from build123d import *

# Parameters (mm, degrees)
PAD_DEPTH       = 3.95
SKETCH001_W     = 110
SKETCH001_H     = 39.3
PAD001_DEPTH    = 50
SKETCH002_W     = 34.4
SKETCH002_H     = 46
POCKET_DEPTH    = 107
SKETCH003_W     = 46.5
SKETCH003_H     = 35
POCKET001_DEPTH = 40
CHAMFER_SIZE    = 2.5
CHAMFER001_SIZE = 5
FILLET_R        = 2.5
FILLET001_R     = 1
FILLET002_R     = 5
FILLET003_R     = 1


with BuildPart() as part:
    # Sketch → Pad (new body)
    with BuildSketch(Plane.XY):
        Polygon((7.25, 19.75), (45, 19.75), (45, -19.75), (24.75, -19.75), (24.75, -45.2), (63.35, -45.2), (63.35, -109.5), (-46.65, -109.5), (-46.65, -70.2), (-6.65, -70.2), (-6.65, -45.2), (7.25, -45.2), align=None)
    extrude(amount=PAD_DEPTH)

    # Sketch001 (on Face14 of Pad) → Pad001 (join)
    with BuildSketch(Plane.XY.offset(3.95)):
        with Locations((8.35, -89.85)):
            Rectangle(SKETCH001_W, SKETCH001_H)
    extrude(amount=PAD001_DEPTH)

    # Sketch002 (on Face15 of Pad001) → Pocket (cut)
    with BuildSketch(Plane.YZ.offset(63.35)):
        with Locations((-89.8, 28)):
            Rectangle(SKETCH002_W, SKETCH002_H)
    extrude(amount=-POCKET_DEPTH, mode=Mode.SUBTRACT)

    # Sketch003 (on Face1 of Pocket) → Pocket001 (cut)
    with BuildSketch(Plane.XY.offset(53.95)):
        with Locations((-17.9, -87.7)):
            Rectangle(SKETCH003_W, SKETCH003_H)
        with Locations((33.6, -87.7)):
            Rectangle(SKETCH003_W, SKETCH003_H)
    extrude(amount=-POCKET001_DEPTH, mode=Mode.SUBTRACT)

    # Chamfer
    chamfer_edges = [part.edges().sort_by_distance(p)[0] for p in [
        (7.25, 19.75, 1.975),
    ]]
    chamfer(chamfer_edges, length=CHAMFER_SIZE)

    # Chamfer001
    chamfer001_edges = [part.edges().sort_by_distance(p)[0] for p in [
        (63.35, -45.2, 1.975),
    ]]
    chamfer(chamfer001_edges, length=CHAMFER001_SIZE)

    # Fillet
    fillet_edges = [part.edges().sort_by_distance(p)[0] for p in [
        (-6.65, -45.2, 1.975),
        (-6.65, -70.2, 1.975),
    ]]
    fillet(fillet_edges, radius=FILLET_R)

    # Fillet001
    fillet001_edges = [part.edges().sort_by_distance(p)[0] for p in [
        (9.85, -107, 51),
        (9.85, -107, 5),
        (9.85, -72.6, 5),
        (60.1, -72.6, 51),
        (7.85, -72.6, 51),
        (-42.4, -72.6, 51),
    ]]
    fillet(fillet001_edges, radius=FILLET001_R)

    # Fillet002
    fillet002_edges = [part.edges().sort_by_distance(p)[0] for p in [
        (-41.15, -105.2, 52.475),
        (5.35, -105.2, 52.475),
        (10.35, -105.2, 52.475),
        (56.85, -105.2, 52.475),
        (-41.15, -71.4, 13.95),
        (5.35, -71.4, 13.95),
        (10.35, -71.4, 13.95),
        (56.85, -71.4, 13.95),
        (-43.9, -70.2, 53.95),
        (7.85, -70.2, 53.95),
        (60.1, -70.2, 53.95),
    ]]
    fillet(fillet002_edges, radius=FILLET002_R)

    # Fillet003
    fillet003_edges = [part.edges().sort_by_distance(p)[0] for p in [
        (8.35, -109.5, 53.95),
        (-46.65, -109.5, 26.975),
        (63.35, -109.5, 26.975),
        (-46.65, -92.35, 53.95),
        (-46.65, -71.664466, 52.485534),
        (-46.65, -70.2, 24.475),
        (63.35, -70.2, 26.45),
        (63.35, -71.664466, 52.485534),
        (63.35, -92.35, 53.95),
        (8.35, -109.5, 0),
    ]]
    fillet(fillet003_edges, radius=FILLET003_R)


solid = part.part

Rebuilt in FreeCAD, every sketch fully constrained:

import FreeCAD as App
import Part
import Sketcher

V = App.Vector
Q = App.Units.Quantity


def edges_at(feature, points):
    """Names of the edges that pass closest to the given points."""
    edges = feature.Shape.Edges
    near = lambda p: min(range(len(edges)), key=lambda i: edges[i].distToShape(Part.Vertex(*p))[0])
    return sorted({f"Edge{near(p) + 1}" for p in points})

doc = App.newDocument("Part")
body = doc.addObject("PartDesign::Body", "Body")

# Sketch on XY plane
sketch1 = body.newObject("Sketcher::SketchObject", "Sketch")
sketch1.AttachmentSupport = (doc.getObject("XY_Plane"), [""])
sketch1.MapMode = "FlatFace"
sketch1.addGeometry([
    Part.LineSegment(V(45, 19.75, 0), V(7.25, 19.75, 0)),  # 0
    Part.LineSegment(V(7.25, 19.75, 0), V(7.25, -45.2, 0)),  # 1
    Part.LineSegment(V(7.25, -45.2, 0), V(-6.65, -45.2, 0)),  # 2
    Part.LineSegment(V(-6.65, -45.2, 0), V(-6.65, -70.2, 0)),  # 3
    Part.LineSegment(V(-6.65, -70.2, 0), V(-46.65, -70.2, 0)),  # 4
    Part.LineSegment(V(-46.65, -70.2, 0), V(-46.65, -109.5, 0)),  # 5
    Part.LineSegment(V(-46.65, -109.5, 0), V(63.35, -109.5, 0)),  # 6
    Part.LineSegment(V(63.35, -109.5, 0), V(63.35, -45.2, 0)),  # 7
    Part.LineSegment(V(63.35, -45.2, 0), V(24.75, -45.2, 0)),  # 8
    Part.LineSegment(V(24.75, -45.2, 0), V(24.75, -19.75, 0)),  # 9
    Part.LineSegment(V(24.75, -19.75, 0), V(45, -19.75, 0)),  # 10
    Part.LineSegment(V(45, -19.75, 0), V(45, 19.75, 0)),  # 11
], False)
sketch1.addConstraint([
    Sketcher.Constraint("Coincident", 0, 2, 1, 1),
    Sketcher.Constraint("Coincident", 1, 2, 2, 1),
    Sketcher.Constraint("Coincident", 2, 2, 3, 1),
    Sketcher.Constraint("Coincident", 3, 2, 4, 1),
    Sketcher.Constraint("Coincident", 4, 2, 5, 1),
    Sketcher.Constraint("Coincident", 5, 2, 6, 1),
    Sketcher.Constraint("Coincident", 6, 2, 7, 1),
    Sketcher.Constraint("Coincident", 7, 2, 8, 1),
    Sketcher.Constraint("Coincident", 8, 2, 9, 1),
    Sketcher.Constraint("Coincident", 9, 2, 10, 1),
    Sketcher.Constraint("Coincident", 10, 2, 11, 1),
    Sketcher.Constraint("Coincident", 11, 2, 0, 1),
    Sketcher.Constraint("Horizontal", 0),
    Sketcher.Constraint("Vertical", 1),
    Sketcher.Constraint("Horizontal", 2),
    Sketcher.Constraint("Vertical", 3),
    Sketcher.Constraint("Horizontal", 4),
    Sketcher.Constraint("Vertical", 5),
    Sketcher.Constraint("Horizontal", 6),
    Sketcher.Constraint("Vertical", 7),
    Sketcher.Constraint("Horizontal", 8),
    Sketcher.Constraint("Vertical", 9),
    Sketcher.Constraint("Horizontal", 10),
    Sketcher.Constraint("Vertical", 11),
    Sketcher.Constraint("Horizontal", 2, 2, 7, 2),
    Sketcher.Constraint("DistanceX", 4, 2, 4, 1, Q("40 mm")),
    Sketcher.Constraint("DistanceX", 6, 1, 6, 2, Q("110 mm")),
    Sketcher.Constraint("DistanceY", 3, 2, 3, 1, Q("25 mm")),
    Sketcher.Constraint("DistanceX", 2, 2, 2, 1, Q("13.9 mm")),
    Sketcher.Constraint("DistanceX", 8, 2, 8, 1, Q("38.6 mm")),
    Sketcher.Constraint("DistanceY", 5, 2, 5, 1, Q("39.3 mm")),
    Sketcher.Constraint("DistanceY", 11, 1, 11, 2, Q("39.5 mm")),
    Sketcher.Constraint("DistanceX", -1, 1, 10, 2, Q("45 mm")),
    Sketcher.Constraint("DistanceX", 0, 2, 0, 1, Q("37.75 mm")),
    Sketcher.Constraint("DistanceY", 1, 2, 1, 1, Q("64.95 mm")),
    Sketcher.Constraint("DistanceY", 1, 2, -1, 1, Q("45.2 mm")),
])
pad1 = body.newObject("PartDesign::Pad", "Pad")
pad1.Profile = sketch1
pad1.Length = 3.95

# Sketch on XY plane
sketch2 = body.newObject("Sketcher::SketchObject", "Sketch001")
sketch2.AttachmentSupport = (doc.getObject("XY_Plane"), [""])
sketch2.MapMode = "FlatFace"
sketch2.AttachmentOffset = App.Placement(V(0, 0, 3.95), App.Rotation())
sketch2.addGeometry([
    Part.LineSegment(V(-46.65, -70.2, 0), V(-46.65, -109.5, 0)),
    Part.LineSegment(V(-46.65, -109.5, 0), V(63.35, -109.5, 0)),
    Part.LineSegment(V(63.35, -109.5, 0), V(63.35, -70.2, 0)),
    Part.LineSegment(V(63.35, -70.2, 0), V(-46.65, -70.2, 0)),
], False)
sketch2.addConstraint([
    Sketcher.Constraint("Coincident", 0, 2, 1, 1),
    Sketcher.Constraint("Coincident", 1, 2, 2, 1),
    Sketcher.Constraint("Coincident", 2, 2, 3, 1),
    Sketcher.Constraint("Coincident", 3, 2, 0, 1),
    Sketcher.Constraint("Vertical", 0),
    Sketcher.Constraint("Horizontal", 1),
    Sketcher.Constraint("Vertical", 2),
    Sketcher.Constraint("Horizontal", 3),
    Sketcher.Constraint("DistanceX", 1, 1, 1, 2, Q("110 mm")),
    Sketcher.Constraint("DistanceY", 0, 2, 0, 1, Q("39.3 mm")),
    Sketcher.Constraint("DistanceY", 0, 2, -1, 1, Q("109.5 mm")),
    Sketcher.Constraint("DistanceX", 0, 2, -1, 1, Q("46.65 mm")),
])
pad2 = body.newObject("PartDesign::Pad", "Pad001")
pad2.Profile = sketch2
pad2.Length = 50

# Sketch on YZ plane
sketch3 = body.newObject("Sketcher::SketchObject", "Sketch002")
sketch3.AttachmentSupport = (doc.getObject("YZ_Plane"), [""])
sketch3.MapMode = "FlatFace"
sketch3.AttachmentOffset = App.Placement(V(0, 0, 63.35), App.Rotation())
sketch3.addGeometry([
    Part.LineSegment(V(-107, 51, 0), V(-107, 5, 0)),
    Part.LineSegment(V(-107, 5, 0), V(-72.6, 5, 0)),
    Part.LineSegment(V(-72.6, 5, 0), V(-72.6, 51, 0)),
    Part.LineSegment(V(-72.6, 51, 0), V(-107, 51, 0)),
], False)
sketch3.addConstraint([
    Sketcher.Constraint("Coincident", 0, 2, 1, 1),
    Sketcher.Constraint("Coincident", 1, 2, 2, 1),
    Sketcher.Constraint("Coincident", 2, 2, 3, 1),
    Sketcher.Constraint("Coincident", 3, 2, 0, 1),
    Sketcher.Constraint("Vertical", 0),
    Sketcher.Constraint("Horizontal", 1),
    Sketcher.Constraint("Vertical", 2),
    Sketcher.Constraint("Horizontal", 3),
    Sketcher.Constraint("DistanceY", 0, 2, 0, 1, Q("46 mm")),
    Sketcher.Constraint("DistanceX", 1, 1, 1, 2, Q("34.4 mm")),
    Sketcher.Constraint("DistanceX", 0, 2, -1, 1, Q("107 mm")),
    Sketcher.Constraint("DistanceY", -1, 1, 0, 2, Q("5 mm")),
])
pocket1 = body.newObject("PartDesign::Pocket", "Pocket")
pocket1.Profile = sketch3
pocket1.Length = 107

# Sketch on XY plane
sketch4 = body.newObject("Sketcher::SketchObject", "Sketch003")
sketch4.AttachmentSupport = (doc.getObject("XY_Plane"), [""])
sketch4.MapMode = "FlatFace"
sketch4.AttachmentOffset = App.Placement(V(0, 0, 53.95), App.Rotation())
sketch4.addGeometry([
    Part.LineSegment(V(-41.15, -70.2, 0), V(-41.15, -105.2, 0)),  # 0
    Part.LineSegment(V(-41.15, -105.2, 0), V(5.35, -105.2, 0)),  # 1
    Part.LineSegment(V(5.35, -105.2, 0), V(5.35, -70.2, 0)),  # 2
    Part.LineSegment(V(5.35, -70.2, 0), V(-41.15, -70.2, 0)),  # 3
    Part.LineSegment(V(10.35, -70.2, 0), V(10.35, -105.2, 0)),  # 4
    Part.LineSegment(V(10.35, -105.2, 0), V(56.85, -105.2, 0)),  # 5
    Part.LineSegment(V(56.85, -105.2, 0), V(56.85, -70.2, 0)),  # 6
    Part.LineSegment(V(56.85, -70.2, 0), V(10.35, -70.2, 0)),  # 7
], False)
sketch4.addConstraint([
    Sketcher.Constraint("Coincident", 0, 2, 1, 1),
    Sketcher.Constraint("Coincident", 1, 2, 2, 1),
    Sketcher.Constraint("Coincident", 2, 2, 3, 1),
    Sketcher.Constraint("Coincident", 3, 2, 0, 1),
    Sketcher.Constraint("Coincident", 4, 2, 5, 1),
    Sketcher.Constraint("Coincident", 5, 2, 6, 1),
    Sketcher.Constraint("Coincident", 6, 2, 7, 1),
    Sketcher.Constraint("Coincident", 7, 2, 4, 1),
    Sketcher.Constraint("Vertical", 0),
    Sketcher.Constraint("Horizontal", 1),
    Sketcher.Constraint("Vertical", 2),
    Sketcher.Constraint("Horizontal", 3),
    Sketcher.Constraint("Vertical", 4),
    Sketcher.Constraint("Horizontal", 5),
    Sketcher.Constraint("Vertical", 6),
    Sketcher.Constraint("Horizontal", 7),
    Sketcher.Constraint("Horizontal", 1, 2, 4, 2),
    Sketcher.Constraint("Horizontal", 3, 2, 6, 2),
    Sketcher.Constraint("Equal", 3, 5),
    Sketcher.Constraint("DistanceY", 0, 2, 0, 1, Q("35 mm")),
    Sketcher.Constraint("DistanceX", 1, 1, 1, 2, Q("46.5 mm")),
    Sketcher.Constraint("DistanceX", 1, 2, 4, 2, Q("5 mm")),
    Sketcher.Constraint("DistanceY", 0, 2, -1, 1, Q("105.2 mm")),
    Sketcher.Constraint("DistanceX", 0, 2, -1, 1, Q("41.15 mm")),
])
pocket2 = body.newObject("PartDesign::Pocket", "Pocket001")
pocket2.Profile = sketch4
pocket2.Length = 40
doc.recompute()

chamfer = body.newObject("PartDesign::Chamfer", "Chamfer")
chamfer.Base = (pocket2, edges_at(pocket2, [(7.25, 19.75, 1.975)]))
chamfer.Size = 2.5
doc.recompute()

chamfer2 = body.newObject("PartDesign::Chamfer", "Chamfer001")
chamfer2.Base = (chamfer, edges_at(chamfer, [(63.35, -45.2, 1.975)]))
chamfer2.Size = 5
doc.recompute()

fillet = body.newObject("PartDesign::Fillet", "Fillet")
fillet.Base = (chamfer2, edges_at(chamfer2, [(-6.65, -45.2, 1.975), (-6.65, -70.2, 1.975)]))
fillet.Radius = 2.5
doc.recompute()

fillet2 = body.newObject("PartDesign::Fillet", "Fillet001")
fillet2.Base = (fillet, edges_at(fillet, [
    (9.85, -107, 51),
    (9.85, -107, 5),
    (9.85, -72.6, 5),
    (60.1, -72.6, 51),
    (7.85, -72.6, 51),
    (-42.4, -72.6, 51),
]))
fillet2.Radius = 1
doc.recompute()

fillet3 = body.newObject("PartDesign::Fillet", "Fillet002")
fillet3.Base = (fillet2, edges_at(fillet2, [
    (-41.15, -105.2, 52.475),
    (5.35, -105.2, 52.475),
    (10.35, -105.2, 52.475),
    (56.85, -105.2, 52.475),
    (-41.15, -71.4, 13.95),
    (5.35, -71.4, 13.95),
    (10.35, -71.4, 13.95),
    (56.85, -71.4, 13.95),
    (-43.9, -70.2, 53.95),
    (7.85, -70.2, 53.95),
    (60.1, -70.2, 53.95),
]))
fillet3.Radius = 5
doc.recompute()

fillet4 = body.newObject("PartDesign::Fillet", "Fillet003")
fillet4.Base = (fillet3, edges_at(fillet3, [
    (8.35, -109.5, 53.95),
    (-46.65, -109.5, 26.975),
    (63.35, -109.5, 26.975),
    (-46.65, -92.35, 53.95),
    (-46.65, -71.664, 52.486),
    (-46.65, -70.2, 24.475),
    (63.35, -70.2, 26.45),
    (63.35, -71.664, 52.486),
    (63.35, -92.35, 53.95),
    (8.35, -109.5, 0),
]))
fillet4.Radius = 1

doc.recompute()
